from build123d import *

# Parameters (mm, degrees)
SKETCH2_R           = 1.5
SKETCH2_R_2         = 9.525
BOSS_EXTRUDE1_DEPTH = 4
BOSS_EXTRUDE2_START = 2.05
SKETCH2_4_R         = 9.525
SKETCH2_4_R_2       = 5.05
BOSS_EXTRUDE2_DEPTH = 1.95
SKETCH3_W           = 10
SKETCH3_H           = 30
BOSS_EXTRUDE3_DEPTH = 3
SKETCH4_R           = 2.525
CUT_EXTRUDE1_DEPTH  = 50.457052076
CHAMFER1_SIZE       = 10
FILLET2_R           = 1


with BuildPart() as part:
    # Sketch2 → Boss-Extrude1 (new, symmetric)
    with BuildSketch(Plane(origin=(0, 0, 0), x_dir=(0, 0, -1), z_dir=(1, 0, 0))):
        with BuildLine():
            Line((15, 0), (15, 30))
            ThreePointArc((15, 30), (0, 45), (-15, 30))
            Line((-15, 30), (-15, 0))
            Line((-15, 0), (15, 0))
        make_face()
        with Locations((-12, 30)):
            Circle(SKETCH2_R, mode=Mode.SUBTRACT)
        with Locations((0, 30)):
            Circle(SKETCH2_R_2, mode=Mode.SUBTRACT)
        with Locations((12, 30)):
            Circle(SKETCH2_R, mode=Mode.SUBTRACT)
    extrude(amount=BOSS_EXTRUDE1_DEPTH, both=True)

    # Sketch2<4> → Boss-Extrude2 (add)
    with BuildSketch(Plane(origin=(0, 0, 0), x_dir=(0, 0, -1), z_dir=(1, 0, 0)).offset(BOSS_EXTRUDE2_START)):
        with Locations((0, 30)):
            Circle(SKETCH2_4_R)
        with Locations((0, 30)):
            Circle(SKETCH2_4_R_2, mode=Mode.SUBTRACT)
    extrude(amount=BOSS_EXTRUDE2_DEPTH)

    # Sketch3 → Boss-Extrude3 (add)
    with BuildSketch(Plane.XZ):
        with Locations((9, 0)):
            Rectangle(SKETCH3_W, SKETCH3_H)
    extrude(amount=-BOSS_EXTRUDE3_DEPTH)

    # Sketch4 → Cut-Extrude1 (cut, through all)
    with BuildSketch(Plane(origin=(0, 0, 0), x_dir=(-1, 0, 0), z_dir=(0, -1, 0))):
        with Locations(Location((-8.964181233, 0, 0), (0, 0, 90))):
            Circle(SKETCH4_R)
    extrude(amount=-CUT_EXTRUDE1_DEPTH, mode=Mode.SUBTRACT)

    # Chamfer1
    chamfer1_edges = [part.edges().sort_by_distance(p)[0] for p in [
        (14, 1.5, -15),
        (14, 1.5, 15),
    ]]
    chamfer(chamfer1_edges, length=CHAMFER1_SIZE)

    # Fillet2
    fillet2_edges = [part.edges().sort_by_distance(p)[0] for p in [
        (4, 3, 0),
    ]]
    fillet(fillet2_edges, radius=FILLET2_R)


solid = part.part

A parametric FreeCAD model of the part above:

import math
import FreeCAD as App
import Part
import Sketcher
from FreeCAD import Vector
Q = App.Units.Quantity


def edges_at(feature, points):
    """Names of the edges that pass closest to the given points."""
    edges = feature.Shape.Edges
    near = lambda p: min(range(len(edges)), key=lambda i: edges[i].distToShape(Part.Vertex(*p))[0])
    return sorted({f"Edge{near(p) + 1}" for p in points})

doc = App.newDocument("Part")
body = doc.addObject("PartDesign::Body", "Body")

sketch1 = body.newObject("Sketcher::SketchObject", "Sketch")
sketch1.AttachmentSupport = (doc.getObject("YZ_Plane"), [""])
sketch1.MapMode = "FlatFace"
sketch1.addGeometry(Part.LineSegment(Vector(0, -15, 0), Vector(30, -15, 0)), False)
sketch1.addGeometry(Part.ArcOfCircle(Part.Circle(Vector(30, 0, 0), Vector(0, 0, 1), 15), math.radians(-90), math.radians(90)), False)
sketch1.addGeometry(Part.LineSegment(Vector(30, 15, 0), Vector(0, 15, 0)), False)
sketch1.addGeometry(Part.LineSegment(Vector(0, 15, 0), Vector(0, -15, 0)), False)
sketch1.addGeometry(Part.Circle(Vector(30, 12, 0), Vector(0, 0, 1), 1.5), False)
sketch1.addGeometry(Part.Circle(Vector(30, 0, 0), Vector(0, 0, 1), 9.525), False)
sketch1.addGeometry(Part.Circle(Vector(30, -12, 0), Vector(0, 0, 1), 1.5), False)
sketch1.addConstraint(Sketcher.Constraint("Tangent", 0, 2, 1, 1))
sketch1.addConstraint(Sketcher.Constraint("Tangent", 1, 2, 2, 1))
sketch1.addConstraint(Sketcher.Constraint("Coincident", 2, 2, 3, 1))
sketch1.addConstraint(Sketcher.Constraint("Coincident", 3, 2, 0, 1))
sketch1.addConstraint(Sketcher.Constraint("Horizontal", 0))
sketch1.addConstraint(Sketcher.Constraint("Horizontal", 2))
sketch1.addConstraint(Sketcher.Constraint("Vertical", 3))
sketch1.addConstraint(Sketcher.Constraint("Coincident", 5, 3, 1, 3))
sketch1.addConstraint(Sketcher.Constraint("Equal", 4, 6))
sketch1.addConstraint(Sketcher.Constraint("Symmetric", 2, 2, 3, 2, -1, 1))
sketch1.addConstraint(Sketcher.Constraint("Symmetric", 4, 3, 6, 3, -1))
sketch1.addConstraint(Sketcher.Constraint("Vertical", 1, 3, 4, 3))
sketch1.addConstraint(Sketcher.Constraint("Equal", 2, 3))
sketch1.addConstraint(Sketcher.Constraint("Diameter", 4, Q("3 mm")))
sketch1.addConstraint(Sketcher.Constraint("Radius", 1, Q("15 mm")))
sketch1.addConstraint(Sketcher.Constraint("Diameter", 5, Q("19.05 mm")))
sketch1.addConstraint(Sketcher.Constraint("DistanceY", -1, 1, 4, 3, Q("12 mm")))
pad1 = body.newObject("PartDesign::Pad", "Pad")
pad1.Profile = sketch1
pad1.Length = 8
pad1.Midplane = True

sketch2 = body.newObject("Sketcher::SketchObject", "Sketch001")
sketch2.AttachmentSupport = (doc.getObject("YZ_Plane"), [""])
sketch2.MapMode = "FlatFace"
sketch2.AttachmentOffset = App.Placement(Vector(0, 0, 2.05), App.Rotation())
sketch2.addGeometry(Part.Circle(Vector(30, 0, 0), Vector(0, 0, 1), 9.525), False)
sketch2.addGeometry(Part.Circle(Vector(30, 0, 0), Vector(0, 0, 1), 5.05), False)
sketch2.addConstraint(Sketcher.Constraint("Coincident", 1, 3, 0, 3))
sketch2.addConstraint(Sketcher.Constraint("PointOnObject", 0, 3, -1))
sketch2.addConstraint(Sketcher.Constraint("Diameter", 1, Q("10.1 mm")))
sketch2.addConstraint(Sketcher.Constraint("Diameter", 0, Q("19.05 mm")))
sketch2.addConstraint(Sketcher.Constraint("DistanceX", -1, 1, 0, 3, Q("30 mm")))
pad2 = body.newObject("PartDesign::Pad", "Pad001")
pad2.Profile = sketch2
pad2.Length = 1.95

sketch3 = body.newObject("Sketcher::SketchObject", "Sketch002")
sketch3.AttachmentSupport = (doc.getObject("XZ_Plane"), [""])
sketch3.MapMode = "FlatFace"
sketch3.addGeometry(Part.LineSegment(Vector(4, 15, 0), Vector(4, -15, 0)), False)
sketch3.addGeometry(Part.LineSegment(Vector(4, -15, 0), Vector(14, -15, 0)), False)
sketch3.addGeometry(Part.LineSegment(Vector(14, -15, 0), Vector(14, 15, 0)), False)
sketch3.addGeometry(Part.LineSegment(Vector(14, 15, 0), Vector(4, 15, 0)), False)
sketch3.addConstraint(Sketcher.Constraint("Coincident", 0, 2, 1, 1))
sketch3.addConstraint(Sketcher.Constraint("Coincident", 1, 2, 2, 1))
sketch3.addConstraint(Sketcher.Constraint("Coincident", 2, 2, 3, 1))
sketch3.addConstraint(Sketcher.Constraint("Coincident", 3, 2, 0, 1))
sketch3.addConstraint(Sketcher.Constraint("Vertical", 0))
sketch3.addConstraint(Sketcher.Constraint("Horizontal", 1))
sketch3.addConstraint(Sketcher.Constraint("Vertical", 2))
sketch3.addConstraint(Sketcher.Constraint("Horizontal", 3))
sketch3.addConstraint(Sketcher.Constraint("DistanceX", 1, 1, 1, 2, Q("10 mm")))
sketch3.addConstraint(Sketcher.Constraint("DistanceY", 0, 2, 0, 1, Q("30 mm")))
sketch3.addConstraint(Sketcher.Constraint("DistanceX", -1, 1, 0, 2, Q("4 mm")))
sketch3.addConstraint(Sketcher.Constraint("DistanceY", 0, 2, -1, 1, Q("15 mm")))
pad3 = body.newObject("PartDesign::Pad", "Pad002")
pad3.Profile = sketch3
pad3.Length = 3
pad3.Reversed = True

sketch4 = body.newObject("Sketcher::SketchObject", "Sketch003")
sketch4.AttachmentSupport = (doc.getObject("XZ_Plane"), [""])
sketch4.MapMode = "FlatFace"
sketch4.addGeometry(Part.Circle(Vector(8.964181, 0, 0), Vector(0, 0, 1), 2.525), False)
sketch4.addConstraint(Sketcher.Constraint("PointOnObject", 0, 3, -1))
sketch4.addConstraint(Sketcher.Constraint("Diameter", 0, Q("5.05 mm")))
sketch4.addConstraint(Sketcher.Constraint("DistanceX", -1, 1, 0, 3, Q("8.964181 mm")))
pocket1 = body.newObject("PartDesign::Pocket", "Pocket")
pocket1.Profile = sketch4
pocket1.Type = "ThroughAll"
doc.recompute()

chamfer = body.newObject("PartDesign::Chamfer", "Chamfer")
chamfer.Base = (pocket1, edges_at(pocket1, [(14, 1.5, -15), (14, 1.5, 15)]))
chamfer.Size = 10
doc.recompute()

fillet = body.newObject("PartDesign::Fillet", "Fillet")
fillet.Base = (chamfer, edges_at(chamfer, [(4, 3, 0)]))
fillet.Radius = 1

doc.recompute()
